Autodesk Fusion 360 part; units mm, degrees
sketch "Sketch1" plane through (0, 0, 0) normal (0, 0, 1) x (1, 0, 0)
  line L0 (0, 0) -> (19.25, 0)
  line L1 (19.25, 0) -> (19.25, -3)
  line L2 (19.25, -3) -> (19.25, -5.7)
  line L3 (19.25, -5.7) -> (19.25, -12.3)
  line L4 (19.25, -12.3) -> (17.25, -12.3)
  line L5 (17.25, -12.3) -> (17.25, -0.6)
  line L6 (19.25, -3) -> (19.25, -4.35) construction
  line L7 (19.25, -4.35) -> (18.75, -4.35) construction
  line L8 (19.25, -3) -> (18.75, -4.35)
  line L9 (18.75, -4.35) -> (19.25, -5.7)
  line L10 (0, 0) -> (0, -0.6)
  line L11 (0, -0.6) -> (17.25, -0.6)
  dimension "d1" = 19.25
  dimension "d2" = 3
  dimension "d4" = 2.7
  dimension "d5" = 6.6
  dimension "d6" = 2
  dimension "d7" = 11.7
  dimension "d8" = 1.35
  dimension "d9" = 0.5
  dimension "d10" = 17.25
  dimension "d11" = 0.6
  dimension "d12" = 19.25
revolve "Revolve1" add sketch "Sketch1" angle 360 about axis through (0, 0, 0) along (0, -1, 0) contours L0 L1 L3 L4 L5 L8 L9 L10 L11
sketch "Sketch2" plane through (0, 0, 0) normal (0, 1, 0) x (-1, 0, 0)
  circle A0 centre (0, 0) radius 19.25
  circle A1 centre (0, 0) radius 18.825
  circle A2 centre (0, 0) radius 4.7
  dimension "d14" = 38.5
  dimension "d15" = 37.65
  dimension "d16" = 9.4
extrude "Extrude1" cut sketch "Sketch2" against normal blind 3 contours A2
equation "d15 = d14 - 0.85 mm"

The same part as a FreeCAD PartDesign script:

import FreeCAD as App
import Part
import Sketcher


def add_polygon(sketch, points):
    """Adds a closed chain of lines whose ends are joined by coincident constraints."""
    first, n = sketch.GeometryCount, len(points)
    for a, b in zip(points, points[1:] + points[:1]):
        sketch.addGeometry(Part.LineSegment(App.Vector(*a, 0), App.Vector(*b, 0)), False)
    for i in range(n):
        sketch.addConstraint(Sketcher.Constraint("Coincident", first + i, 2, first + (i + 1) % n, 1))

doc = App.newDocument("Part")
params = doc.addObject("Spreadsheet::Sheet", "Params")
for row, (alias, value) in enumerate([
    ("sketch1_width", "2 mm"),
    ("sketch1_height", "3 mm"),
    ("sketch1_height2", "0.6 mm"),
    ("sketch1_height3", "11.7 mm"),
    ("sketch1_height4", "6.6 mm"),
    ("revolution_angle", "360 deg"),
    ("sketch2_diameter", "9.4 mm"),
    ("pocket1_length", "3 mm"),
], start=1):
    params.set(f"A{row}", alias)
    params.set(f"B{row}", "=" + value)
    params.setAlias(f"B{row}", alias)

body = doc.addObject("PartDesign::Body", "Body")

sketch1 = body.newObject("Sketcher::SketchObject", "Sketch")
sketch1.AttachmentSupport = (doc.getObject("XY_Plane"), [""])
sketch1.MapMode = "FlatFace"
add_polygon(sketch1, [(19.25, 0), (0, 0), (0, -0.6), (17.25, -0.6), (17.25, -12.3), (19.25, -12.3), (19.25, -5.7), (18.75, -4.35), (19.25, -3)])
sketch1.addConstraint(Sketcher.Constraint("Horizontal", 0))
sketch1.addConstraint(Sketcher.Constraint("Vertical", 1))
sketch1.addConstraint(Sketcher.Constraint("Horizontal", 2))
sketch1.addConstraint(Sketcher.Constraint("Vertical", 3))
sketch1.addConstraint(Sketcher.Constraint("Horizontal", 4))
sketch1.addConstraint(Sketcher.Constraint("Vertical", 5))
sketch1.addConstraint(Sketcher.Constraint("Vertical", 8))
sketch1.addConstraint(Sketcher.Constraint("Coincident", 0, 2, -1, 1))
sketch1.addConstraint(Sketcher.Constraint("Vertical", 5, 2, 7, 2))
sketch1.addConstraint(Sketcher.Constraint("Equal", 6, 7))
sketch1.addConstraint(Sketcher.Constraint("DistanceX", 4, 1, 4, 2, 2.0))
sketch1.addConstraint(Sketcher.Constraint("DistanceY", 8, 1, 8, 2, 3.0))
sketch1.addConstraint(Sketcher.Constraint("DistanceY", 1, 2, 1, 1, 0.6))
sketch1.addConstraint(Sketcher.Constraint("DistanceY", 3, 2, 3, 1, 11.7))
sketch1.addConstraint(Sketcher.Constraint("DistanceY", 5, 1, 5, 2, 6.6))
sketch1.addConstraint(Sketcher.Constraint("DistanceX", 0, 2, 0, 1, 19.25))
sketch1.addConstraint(Sketcher.Constraint("DistanceX", 6, 2, 5, 2, 0.5))
sketch1.setExpression("Constraints[19]", "Params.sketch1_width")
sketch1.setExpression("Constraints[20]", "Params.sketch1_height")
sketch1.setExpression("Constraints[21]", "Params.sketch1_height2")
sketch1.setExpression("Constraints[22]", "Params.sketch1_height3")
sketch1.setExpression("Constraints[23]", "Params.sketch1_height4")
revolution = body.newObject("PartDesign::Revolution", "Revolution")
revolution.Profile = sketch1
revolution.ReferenceAxis = (sketch1, ["V_Axis"])
revolution.setExpression("Angle", "Params.revolution_angle")

sketch2 = body.newObject("Sketcher::SketchObject", "Sketch001")
sketch2.AttachmentSupport = (doc.getObject("XZ_Plane"), [""])
sketch2.MapMode = "FlatFace"
sketch2.addGeometry(Part.Circle(App.Vector(0, 0, 0), App.Vector(0, 0, 1), 4.7), False)
sketch2.addConstraint(Sketcher.Constraint("Coincident", 0, 3, -1, 1))
sketch2.addConstraint(Sketcher.Constraint("Diameter", 0, 9.4))
sketch2.setExpression("Constraints[1]", "Params.sketch2_diameter")
pocket1 = body.newObject("PartDesign::Pocket", "Pocket")
pocket1.Profile = sketch2
pocket1.setExpression("Length", "Params.pocket1_length")
pocket1.Reversed = True

doc.recompute()
